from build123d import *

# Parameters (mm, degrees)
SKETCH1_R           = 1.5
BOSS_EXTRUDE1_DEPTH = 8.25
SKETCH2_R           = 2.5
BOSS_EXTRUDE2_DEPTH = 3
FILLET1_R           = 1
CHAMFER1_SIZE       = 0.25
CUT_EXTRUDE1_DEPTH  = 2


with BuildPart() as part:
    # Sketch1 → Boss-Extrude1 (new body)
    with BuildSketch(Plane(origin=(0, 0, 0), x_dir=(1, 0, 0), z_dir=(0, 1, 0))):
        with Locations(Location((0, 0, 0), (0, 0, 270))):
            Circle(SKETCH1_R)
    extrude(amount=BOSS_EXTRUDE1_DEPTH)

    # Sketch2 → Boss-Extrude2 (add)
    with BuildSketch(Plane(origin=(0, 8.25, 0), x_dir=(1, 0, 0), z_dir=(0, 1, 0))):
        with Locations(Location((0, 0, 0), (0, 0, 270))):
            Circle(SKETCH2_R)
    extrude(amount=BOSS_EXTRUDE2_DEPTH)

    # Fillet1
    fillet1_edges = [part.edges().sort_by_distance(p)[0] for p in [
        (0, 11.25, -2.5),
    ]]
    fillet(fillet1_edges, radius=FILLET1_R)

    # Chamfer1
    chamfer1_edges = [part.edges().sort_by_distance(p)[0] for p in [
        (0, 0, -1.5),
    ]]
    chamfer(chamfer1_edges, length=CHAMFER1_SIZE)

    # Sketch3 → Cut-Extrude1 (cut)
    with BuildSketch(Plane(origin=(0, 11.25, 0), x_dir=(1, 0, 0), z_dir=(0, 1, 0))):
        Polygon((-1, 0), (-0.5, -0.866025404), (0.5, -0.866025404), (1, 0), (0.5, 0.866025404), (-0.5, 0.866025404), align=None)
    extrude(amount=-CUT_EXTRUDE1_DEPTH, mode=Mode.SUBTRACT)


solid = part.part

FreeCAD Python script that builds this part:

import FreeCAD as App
import Part
import Sketcher
Q = App.Units.Quantity


def edges_at(feature, points):
    """Names of the edges that pass closest to the given points."""
    edges = feature.Shape.Edges
    near = lambda p: min(range(len(edges)), key=lambda i: edges[i].distToShape(Part.Vertex(*p))[0])
    return sorted({f"Edge{near(p) + 1}" for p in points})

doc = App.newDocument("Part")
body = doc.addObject("PartDesign::Body", "Body")

# Sketch on XZ plane
sketch1 = doc.addObject("Sketcher::SketchObject", "Sketch")
body.addObject(sketch1)
sketch1.AttachmentSupport = (doc.XZ_Plane, [""])
sketch1.MapMode = "FlatFace"
sketch1.addGeometry(Part.Circle(App.Vector(0, 0, 0), App.Vector(0, 0, 1), 1.5), False)
sketch1.addConstraint([
    Sketcher.Constraint("Coincident", 0, 3, -1, 1),
    Sketcher.Constraint("Diameter", 0, Q("3 mm")),
])
pad1 = doc.addObject("PartDesign::Pad", "Pad")
body.addObject(pad1)
pad1.Profile = sketch1
pad1.Length = 8.25
pad1.Reversed = True

# Sketch on XZ plane
sketch2 = doc.addObject("Sketcher::SketchObject", "Sketch001")
body.addObject(sketch2)
sketch2.AttachmentSupport = (doc.XZ_Plane, [""])
sketch2.MapMode = "FlatFace"
sketch2.AttachmentOffset = App.Placement(App.Vector(0, 0, -8.25), App.Rotation())
sketch2.addGeometry(Part.Circle(App.Vector(0, 0, 0), App.Vector(0, 0, 1), 2.5), False)
sketch2.addConstraint([
    Sketcher.Constraint("Coincident", 0, 3, -1, 1),
    Sketcher.Constraint("Diameter", 0, Q("5 mm")),
])
pad2 = doc.addObject("PartDesign::Pad", "Pad001")
body.addObject(pad2)
pad2.Profile = sketch2
pad2.Length = 3
pad2.Reversed = True
doc.recompute()

fillet = doc.addObject("PartDesign::Fillet", "Fillet")
body.addObject(fillet)
fillet.Base = (pad2, edges_at(pad2, [(0, 11.25, -2.5)]))
fillet.Radius = 1
doc.recompute()

chamfer = doc.addObject("PartDesign::Chamfer", "Chamfer")
body.addObject(chamfer)
chamfer.Base = (fillet, edges_at(fillet, [(0, 0, -1.5)]))
chamfer.Size = 0.25

# Sketch on XZ plane
sketch3 = doc.addObject("Sketcher::SketchObject", "Sketch002")
body.addObject(sketch3)
sketch3.AttachmentSupport = (doc.XZ_Plane, [""])
sketch3.MapMode = "FlatFace"
sketch3.AttachmentOffset = App.Placement(App.Vector(0, 0, -11.25), App.Rotation())
sketch3.addGeometry([
    Part.LineSegment(App.Vector(-1, 0, 0), App.Vector(-0.5, 0.866025, 0)),  # 0
    Part.LineSegment(App.Vector(-0.5, 0.866025, 0), App.Vector(0.5, 0.866025, 0)),  # 1
    Part.LineSegment(App.Vector(0.5, 0.866025, 0), App.Vector(1, 0, 0)),  # 2
    Part.LineSegment(App.Vector(1, 0, 0), App.Vector(0.5, -0.866025, 0)),  # 3
    Part.LineSegment(App.Vector(0.5, -0.866025, 0), App.Vector(-0.5, -0.866025, 0)),  # 4
    Part.LineSegment(App.Vector(-0.5, -0.866025, 0), App.Vector(-1, 0, 0)),  # 5
], False)
sketch3.addConstraint([
    Sketcher.Constraint("Coincident", 0, 2, 1, 1),
    Sketcher.Constraint("Coincident", 1, 2, 2, 1),
    Sketcher.Constraint("Coincident", 2, 2, 3, 1),
    Sketcher.Constraint("Coincident", 3, 2, 4, 1),
    Sketcher.Constraint("Coincident", 4, 2, 5, 1),
    Sketcher.Constraint("Coincident", 5, 2, 0, 1),
    Sketcher.Constraint("Horizontal", 1),
    Sketcher.Constraint("Horizontal", 4),
    Sketcher.Constraint("Symmetric", 0, 2, 3, 2, -1, 1),
    Sketcher.Constraint("Symmetric", 2, 2, 5, 2, -1, 1),
    Sketcher.Constraint("PointOnObject", 2, 2, -1),
    Sketcher.Constraint("Parallel", 2, 5),
    Sketcher.Constraint("Vertical", 1, 2, 3, 2),
    Sketcher.Constraint("DistanceX", 1, 1, 1, 2, Q("1 mm")),
    Sketcher.Constraint("Angle", 0, Q("60 deg")),
    Sketcher.Constraint("Distance", 0, Q("1 mm")),
])
pocket1 = doc.addObject("PartDesign::Pocket", "Pocket")
body.addObject(pocket1)
pocket1.Profile = sketch3
pocket1.Length = 2
pocket1.Reversed = True

doc.recompute()
